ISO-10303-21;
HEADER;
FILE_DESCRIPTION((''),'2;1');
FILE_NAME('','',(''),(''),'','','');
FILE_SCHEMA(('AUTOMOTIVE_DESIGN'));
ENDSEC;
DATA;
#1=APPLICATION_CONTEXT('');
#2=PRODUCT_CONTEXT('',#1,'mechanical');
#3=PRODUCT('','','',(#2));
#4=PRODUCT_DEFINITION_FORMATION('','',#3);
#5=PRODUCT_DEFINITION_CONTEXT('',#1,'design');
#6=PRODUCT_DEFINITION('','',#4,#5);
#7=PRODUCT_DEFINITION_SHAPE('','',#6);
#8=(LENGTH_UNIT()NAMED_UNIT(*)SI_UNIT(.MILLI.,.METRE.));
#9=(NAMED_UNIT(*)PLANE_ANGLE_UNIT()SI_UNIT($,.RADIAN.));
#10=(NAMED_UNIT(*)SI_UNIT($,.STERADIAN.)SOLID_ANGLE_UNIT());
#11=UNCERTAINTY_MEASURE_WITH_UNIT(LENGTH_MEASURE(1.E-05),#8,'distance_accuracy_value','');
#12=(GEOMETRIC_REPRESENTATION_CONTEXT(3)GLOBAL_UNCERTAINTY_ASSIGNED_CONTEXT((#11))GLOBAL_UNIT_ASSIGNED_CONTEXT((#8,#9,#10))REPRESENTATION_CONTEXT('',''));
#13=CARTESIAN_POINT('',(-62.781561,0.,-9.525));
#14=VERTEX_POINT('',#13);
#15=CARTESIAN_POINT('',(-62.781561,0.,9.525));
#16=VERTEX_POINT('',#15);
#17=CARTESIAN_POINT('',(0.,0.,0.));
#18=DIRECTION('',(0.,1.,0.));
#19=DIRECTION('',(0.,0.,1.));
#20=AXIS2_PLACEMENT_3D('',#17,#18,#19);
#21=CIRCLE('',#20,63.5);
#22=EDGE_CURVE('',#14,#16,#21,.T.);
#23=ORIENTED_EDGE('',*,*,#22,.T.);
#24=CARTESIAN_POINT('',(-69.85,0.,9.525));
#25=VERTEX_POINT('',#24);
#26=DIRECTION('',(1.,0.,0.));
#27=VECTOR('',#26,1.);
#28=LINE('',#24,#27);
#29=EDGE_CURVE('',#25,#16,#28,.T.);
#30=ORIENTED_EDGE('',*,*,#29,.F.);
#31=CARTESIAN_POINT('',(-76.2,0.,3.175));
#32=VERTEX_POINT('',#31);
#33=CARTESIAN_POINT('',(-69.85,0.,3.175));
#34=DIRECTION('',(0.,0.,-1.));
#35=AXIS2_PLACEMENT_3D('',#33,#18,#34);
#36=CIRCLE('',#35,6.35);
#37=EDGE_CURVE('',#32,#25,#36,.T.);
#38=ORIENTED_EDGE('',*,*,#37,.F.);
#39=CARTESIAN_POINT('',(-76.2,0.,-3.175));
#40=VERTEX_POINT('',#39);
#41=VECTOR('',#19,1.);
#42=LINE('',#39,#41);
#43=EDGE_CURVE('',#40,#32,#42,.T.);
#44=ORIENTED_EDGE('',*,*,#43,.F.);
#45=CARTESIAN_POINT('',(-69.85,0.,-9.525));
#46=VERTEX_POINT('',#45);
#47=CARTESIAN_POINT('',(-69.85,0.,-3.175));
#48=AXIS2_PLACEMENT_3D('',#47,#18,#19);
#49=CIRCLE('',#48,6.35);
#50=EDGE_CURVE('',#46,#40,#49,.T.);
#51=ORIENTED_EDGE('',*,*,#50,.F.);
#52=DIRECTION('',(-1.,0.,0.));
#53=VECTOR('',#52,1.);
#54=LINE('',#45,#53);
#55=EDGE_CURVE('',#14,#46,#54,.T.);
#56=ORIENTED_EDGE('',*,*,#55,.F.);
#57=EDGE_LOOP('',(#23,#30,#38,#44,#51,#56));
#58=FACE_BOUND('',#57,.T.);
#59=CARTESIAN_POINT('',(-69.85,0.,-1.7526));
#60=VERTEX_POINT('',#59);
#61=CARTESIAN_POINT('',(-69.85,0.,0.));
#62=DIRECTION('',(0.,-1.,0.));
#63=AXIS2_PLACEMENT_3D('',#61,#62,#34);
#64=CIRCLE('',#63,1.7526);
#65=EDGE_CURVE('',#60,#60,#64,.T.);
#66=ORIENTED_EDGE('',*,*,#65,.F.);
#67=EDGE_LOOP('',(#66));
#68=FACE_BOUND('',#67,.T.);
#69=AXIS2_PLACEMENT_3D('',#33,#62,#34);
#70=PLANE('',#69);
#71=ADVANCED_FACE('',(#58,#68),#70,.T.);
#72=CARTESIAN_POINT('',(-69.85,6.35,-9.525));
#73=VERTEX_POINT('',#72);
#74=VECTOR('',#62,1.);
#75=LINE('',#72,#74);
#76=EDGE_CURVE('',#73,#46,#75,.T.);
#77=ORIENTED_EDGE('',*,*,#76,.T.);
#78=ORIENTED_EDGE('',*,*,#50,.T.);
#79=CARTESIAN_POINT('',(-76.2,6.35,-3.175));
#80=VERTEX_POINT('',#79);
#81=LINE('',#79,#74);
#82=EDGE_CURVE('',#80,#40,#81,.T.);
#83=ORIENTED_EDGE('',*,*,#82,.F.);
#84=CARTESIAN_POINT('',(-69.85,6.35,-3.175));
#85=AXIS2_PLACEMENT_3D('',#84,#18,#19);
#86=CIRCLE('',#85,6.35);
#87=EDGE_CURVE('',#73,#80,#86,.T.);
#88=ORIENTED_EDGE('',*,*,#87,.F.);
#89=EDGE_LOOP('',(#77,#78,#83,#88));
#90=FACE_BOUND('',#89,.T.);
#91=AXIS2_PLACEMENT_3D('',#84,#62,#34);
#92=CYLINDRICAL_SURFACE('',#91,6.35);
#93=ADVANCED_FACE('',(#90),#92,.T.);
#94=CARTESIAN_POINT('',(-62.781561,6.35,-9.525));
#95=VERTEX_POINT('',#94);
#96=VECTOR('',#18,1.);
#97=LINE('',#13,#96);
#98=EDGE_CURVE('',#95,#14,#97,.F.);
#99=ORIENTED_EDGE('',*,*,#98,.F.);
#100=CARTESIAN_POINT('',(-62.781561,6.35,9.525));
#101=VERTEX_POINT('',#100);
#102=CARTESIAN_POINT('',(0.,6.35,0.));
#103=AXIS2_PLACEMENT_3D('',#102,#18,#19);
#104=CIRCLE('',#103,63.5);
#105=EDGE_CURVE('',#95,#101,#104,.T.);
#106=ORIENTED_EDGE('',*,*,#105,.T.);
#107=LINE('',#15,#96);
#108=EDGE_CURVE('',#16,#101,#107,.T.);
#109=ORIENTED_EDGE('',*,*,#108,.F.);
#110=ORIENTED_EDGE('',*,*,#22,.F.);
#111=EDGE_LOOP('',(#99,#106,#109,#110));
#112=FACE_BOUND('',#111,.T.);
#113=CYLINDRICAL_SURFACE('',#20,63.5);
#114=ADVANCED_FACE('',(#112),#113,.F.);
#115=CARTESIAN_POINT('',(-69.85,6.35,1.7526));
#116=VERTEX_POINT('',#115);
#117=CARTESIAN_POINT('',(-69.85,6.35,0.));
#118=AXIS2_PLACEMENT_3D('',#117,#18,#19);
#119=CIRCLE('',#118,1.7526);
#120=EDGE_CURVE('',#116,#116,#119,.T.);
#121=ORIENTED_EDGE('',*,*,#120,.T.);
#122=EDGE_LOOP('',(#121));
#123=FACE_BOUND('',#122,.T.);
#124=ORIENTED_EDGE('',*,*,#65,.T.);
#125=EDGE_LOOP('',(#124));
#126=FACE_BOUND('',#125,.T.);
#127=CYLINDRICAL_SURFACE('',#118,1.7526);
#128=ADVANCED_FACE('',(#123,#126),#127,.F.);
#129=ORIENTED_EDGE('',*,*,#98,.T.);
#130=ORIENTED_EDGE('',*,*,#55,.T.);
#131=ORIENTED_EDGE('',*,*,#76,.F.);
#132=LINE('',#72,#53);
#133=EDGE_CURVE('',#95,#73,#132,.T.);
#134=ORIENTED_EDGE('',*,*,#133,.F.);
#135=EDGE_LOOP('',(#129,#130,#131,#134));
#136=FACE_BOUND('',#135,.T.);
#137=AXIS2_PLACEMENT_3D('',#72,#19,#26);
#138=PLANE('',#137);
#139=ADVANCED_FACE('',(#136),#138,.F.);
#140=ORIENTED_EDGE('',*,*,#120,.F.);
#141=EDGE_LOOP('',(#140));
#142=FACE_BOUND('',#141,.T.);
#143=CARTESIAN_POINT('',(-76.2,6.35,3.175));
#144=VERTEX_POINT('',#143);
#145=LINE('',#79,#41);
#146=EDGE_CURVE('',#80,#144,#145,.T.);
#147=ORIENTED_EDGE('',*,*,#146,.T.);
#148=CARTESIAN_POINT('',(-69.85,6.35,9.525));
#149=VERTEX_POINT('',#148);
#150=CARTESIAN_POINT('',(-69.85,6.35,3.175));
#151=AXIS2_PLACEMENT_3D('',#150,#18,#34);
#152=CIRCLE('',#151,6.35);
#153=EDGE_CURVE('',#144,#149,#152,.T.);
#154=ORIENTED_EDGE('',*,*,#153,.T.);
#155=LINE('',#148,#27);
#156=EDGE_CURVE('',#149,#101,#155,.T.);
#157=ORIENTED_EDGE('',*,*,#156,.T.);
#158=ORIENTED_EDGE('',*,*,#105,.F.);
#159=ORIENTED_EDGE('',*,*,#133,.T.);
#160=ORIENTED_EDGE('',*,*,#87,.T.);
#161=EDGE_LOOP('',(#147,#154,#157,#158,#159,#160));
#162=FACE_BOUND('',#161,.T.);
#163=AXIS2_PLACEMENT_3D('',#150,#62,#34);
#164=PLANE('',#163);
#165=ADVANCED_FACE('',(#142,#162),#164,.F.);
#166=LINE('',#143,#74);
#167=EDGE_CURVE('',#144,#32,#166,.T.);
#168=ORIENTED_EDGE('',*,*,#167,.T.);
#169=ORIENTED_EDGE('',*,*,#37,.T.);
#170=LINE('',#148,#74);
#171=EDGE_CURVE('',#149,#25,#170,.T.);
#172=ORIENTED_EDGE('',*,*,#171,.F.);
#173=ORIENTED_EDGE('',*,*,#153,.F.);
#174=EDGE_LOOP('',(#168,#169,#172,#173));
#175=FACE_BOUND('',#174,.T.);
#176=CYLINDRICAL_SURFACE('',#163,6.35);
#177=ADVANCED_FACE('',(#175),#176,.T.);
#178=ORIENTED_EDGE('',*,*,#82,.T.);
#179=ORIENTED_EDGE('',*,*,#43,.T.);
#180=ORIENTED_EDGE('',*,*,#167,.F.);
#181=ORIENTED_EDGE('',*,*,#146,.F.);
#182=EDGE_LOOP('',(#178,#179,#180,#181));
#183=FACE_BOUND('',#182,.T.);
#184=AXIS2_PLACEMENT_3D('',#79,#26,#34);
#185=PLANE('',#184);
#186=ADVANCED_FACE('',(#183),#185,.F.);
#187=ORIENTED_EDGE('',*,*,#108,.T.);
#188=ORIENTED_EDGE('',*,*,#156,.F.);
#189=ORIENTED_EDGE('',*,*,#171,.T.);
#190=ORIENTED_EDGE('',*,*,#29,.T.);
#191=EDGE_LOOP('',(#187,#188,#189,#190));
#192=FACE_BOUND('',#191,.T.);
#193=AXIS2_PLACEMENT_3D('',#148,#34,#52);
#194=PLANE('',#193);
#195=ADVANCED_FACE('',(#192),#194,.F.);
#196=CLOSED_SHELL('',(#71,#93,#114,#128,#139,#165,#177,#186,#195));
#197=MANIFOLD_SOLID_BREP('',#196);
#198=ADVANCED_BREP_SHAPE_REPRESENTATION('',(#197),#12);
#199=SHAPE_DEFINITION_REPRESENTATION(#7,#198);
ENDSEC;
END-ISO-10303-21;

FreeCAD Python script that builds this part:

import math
import FreeCAD as App
import Part
import Sketcher

V = App.Vector
Q = App.Units.Quantity

doc = App.newDocument("Part")
params = doc.addObject("Spreadsheet::Sheet", "Params")
for row, (alias, value) in enumerate([
    ("sketch1_radius", "0.25 in"),
    ("sketch1_height", "0.25 in"),
    ("pad1_length", "0.25 in"),
    ("sketch2_diameter", "5 in"),
    ("pocket1_length", "0.25 in"),
    ("hole_diameter", "0.1065 in"),
    ("hole_depth", "0.37 in"),
    ("hole_cbore_diameter", "0.138 in"),
    ("hole_cbore_depth", "0.28 in"),
], start=1):
    params.set(f"A{row}", alias)
    params.set(f"B{row}", "=" + value)
    params.setAlias(f"B{row}", alias)

body = doc.addObject("PartDesign::Body", "Body")

sketch1 = body.newObject("Sketcher::SketchObject", "Sketch")
sketch1.AttachmentSupport = (doc.getObject("XZ_Plane"), [""])
sketch1.MapMode = "FlatFace"
sketch1.addGeometry([
    Part.LineSegment(V(0, -10, 0), V(-70, -10, 0)),
    Part.ArcOfCircle(Part.Circle(V(-70, -3, 0), V(0, 0, 1), 6), math.radians(180), math.radians(270)),
    Part.LineSegment(V(-76, -3, 0), V(-76, 3, 0)),
    Part.ArcOfCircle(Part.Circle(V(-70, 3, 0), V(0, 0, 1), 6), math.radians(90), math.radians(180)),
    Part.LineSegment(V(-70, 10, 0), V(0, 10, 0)),
    Part.LineSegment(V(0, 10, 0), V(0, -10, 0)),
], False)
sketch1.addConstraint([
    Sketcher.Constraint("Tangent", 0, 2, 1, 2),
    Sketcher.Constraint("Tangent", 1, 1, 2, 1),
    Sketcher.Constraint("Tangent", 2, 2, 3, 2),
    Sketcher.Constraint("Tangent", 3, 1, 4, 1),
    Sketcher.Constraint("Coincident", 4, 2, 5, 1),
    Sketcher.Constraint("Coincident", 5, 2, 0, 1),
    Sketcher.Constraint("Horizontal", 0),
    Sketcher.Constraint("Vertical", 2),
    Sketcher.Constraint("Horizontal", 4),
    Sketcher.Constraint("Vertical", 5),
    Sketcher.Constraint("Equal", 1, 3),
    Sketcher.Constraint("Symmetric", 4, 2, 5, 2, -1, 1),
    Sketcher.Constraint("Radius", 1, Q("0.25 in")),
    Sketcher.Constraint("DistanceX", 1, 1, -1, 1, Q("3 in")),
    Sketcher.Constraint("DistanceY", 2, 1, 2, 2, Q("0.25 in")),
])
sketch1.setExpression("Constraints[12]", "Params.sketch1_radius")
sketch1.setExpression("Constraints[14]", "Params.sketch1_height")
pad1 = body.newObject("PartDesign::Pad", "Pad")
pad1.Profile = sketch1
pad1.setExpression("Length", "Params.pad1_length")
pad1.Reversed = True

sketch2 = body.newObject("Sketcher::SketchObject", "Sketch001")
sketch2.AttachmentSupport = (doc.getObject("XZ_Plane"), [""])
sketch2.MapMode = "FlatFace"
sketch2.AttachmentOffset = App.Placement(V(0, 0, -0.25 * 25.4), App.Rotation())
sketch2.addGeometry(Part.Circle(V(0, 0, 0), V(0, 0, 1), 64), False)
sketch2.addConstraint([
    Sketcher.Constraint("Coincident", 0, 3, -1, 1),
    Sketcher.Constraint("Diameter", 0, Q("5 in")),
])
sketch2.setExpression("Constraints[1]", "Params.sketch2_diameter")
pocket1 = body.newObject("PartDesign::Pocket", "Pocket")
pocket1.Profile = sketch2
pocket1.setExpression("Length", "Params.pocket1_length")
pocket1.Reversed = True

sketch3 = body.newObject("Sketcher::SketchObject", "Sketch002")
sketch3.AttachmentSupport = (doc.getObject("XZ_Plane"), [""])
sketch3.MapMode = "FlatFace"
sketch3.AttachmentOffset = App.Placement(V(0, 0, -0.25 * 25.4), App.Rotation())
sketch3.addGeometry(Part.Circle(V(-69.8, 0, 0), V(0, 0, 1), 1.4), False)
sketch3.addConstraint([
    Sketcher.Constraint("PointOnObject", 0, 3, -1),
    Sketcher.Constraint("Diameter", 0, Q("0.1065 in")),
    Sketcher.Constraint("DistanceX", 0, 3, -1, 1, Q("2.75 in")),
])
doc.recompute()
hole = body.newObject("PartDesign::Hole", "Hole")
hole.Profile = sketch3
hole.ThreadType = "None"
hole.setExpression("Diameter", "Params.hole_diameter")
hole.DepthType = "Dimension"
hole.setExpression("Depth", "Params.hole_depth")
hole.DrillPoint = "Angled"
hole.DrillPointAngle = 118
hole.HoleCutType = "Counterbore"
hole.setExpression("HoleCutDiameter", "Params.hole_cbore_diameter")
hole.setExpression("HoleCutDepth", "Params.hole_cbore_depth")
hole.Reversed = True

doc.recompute()
